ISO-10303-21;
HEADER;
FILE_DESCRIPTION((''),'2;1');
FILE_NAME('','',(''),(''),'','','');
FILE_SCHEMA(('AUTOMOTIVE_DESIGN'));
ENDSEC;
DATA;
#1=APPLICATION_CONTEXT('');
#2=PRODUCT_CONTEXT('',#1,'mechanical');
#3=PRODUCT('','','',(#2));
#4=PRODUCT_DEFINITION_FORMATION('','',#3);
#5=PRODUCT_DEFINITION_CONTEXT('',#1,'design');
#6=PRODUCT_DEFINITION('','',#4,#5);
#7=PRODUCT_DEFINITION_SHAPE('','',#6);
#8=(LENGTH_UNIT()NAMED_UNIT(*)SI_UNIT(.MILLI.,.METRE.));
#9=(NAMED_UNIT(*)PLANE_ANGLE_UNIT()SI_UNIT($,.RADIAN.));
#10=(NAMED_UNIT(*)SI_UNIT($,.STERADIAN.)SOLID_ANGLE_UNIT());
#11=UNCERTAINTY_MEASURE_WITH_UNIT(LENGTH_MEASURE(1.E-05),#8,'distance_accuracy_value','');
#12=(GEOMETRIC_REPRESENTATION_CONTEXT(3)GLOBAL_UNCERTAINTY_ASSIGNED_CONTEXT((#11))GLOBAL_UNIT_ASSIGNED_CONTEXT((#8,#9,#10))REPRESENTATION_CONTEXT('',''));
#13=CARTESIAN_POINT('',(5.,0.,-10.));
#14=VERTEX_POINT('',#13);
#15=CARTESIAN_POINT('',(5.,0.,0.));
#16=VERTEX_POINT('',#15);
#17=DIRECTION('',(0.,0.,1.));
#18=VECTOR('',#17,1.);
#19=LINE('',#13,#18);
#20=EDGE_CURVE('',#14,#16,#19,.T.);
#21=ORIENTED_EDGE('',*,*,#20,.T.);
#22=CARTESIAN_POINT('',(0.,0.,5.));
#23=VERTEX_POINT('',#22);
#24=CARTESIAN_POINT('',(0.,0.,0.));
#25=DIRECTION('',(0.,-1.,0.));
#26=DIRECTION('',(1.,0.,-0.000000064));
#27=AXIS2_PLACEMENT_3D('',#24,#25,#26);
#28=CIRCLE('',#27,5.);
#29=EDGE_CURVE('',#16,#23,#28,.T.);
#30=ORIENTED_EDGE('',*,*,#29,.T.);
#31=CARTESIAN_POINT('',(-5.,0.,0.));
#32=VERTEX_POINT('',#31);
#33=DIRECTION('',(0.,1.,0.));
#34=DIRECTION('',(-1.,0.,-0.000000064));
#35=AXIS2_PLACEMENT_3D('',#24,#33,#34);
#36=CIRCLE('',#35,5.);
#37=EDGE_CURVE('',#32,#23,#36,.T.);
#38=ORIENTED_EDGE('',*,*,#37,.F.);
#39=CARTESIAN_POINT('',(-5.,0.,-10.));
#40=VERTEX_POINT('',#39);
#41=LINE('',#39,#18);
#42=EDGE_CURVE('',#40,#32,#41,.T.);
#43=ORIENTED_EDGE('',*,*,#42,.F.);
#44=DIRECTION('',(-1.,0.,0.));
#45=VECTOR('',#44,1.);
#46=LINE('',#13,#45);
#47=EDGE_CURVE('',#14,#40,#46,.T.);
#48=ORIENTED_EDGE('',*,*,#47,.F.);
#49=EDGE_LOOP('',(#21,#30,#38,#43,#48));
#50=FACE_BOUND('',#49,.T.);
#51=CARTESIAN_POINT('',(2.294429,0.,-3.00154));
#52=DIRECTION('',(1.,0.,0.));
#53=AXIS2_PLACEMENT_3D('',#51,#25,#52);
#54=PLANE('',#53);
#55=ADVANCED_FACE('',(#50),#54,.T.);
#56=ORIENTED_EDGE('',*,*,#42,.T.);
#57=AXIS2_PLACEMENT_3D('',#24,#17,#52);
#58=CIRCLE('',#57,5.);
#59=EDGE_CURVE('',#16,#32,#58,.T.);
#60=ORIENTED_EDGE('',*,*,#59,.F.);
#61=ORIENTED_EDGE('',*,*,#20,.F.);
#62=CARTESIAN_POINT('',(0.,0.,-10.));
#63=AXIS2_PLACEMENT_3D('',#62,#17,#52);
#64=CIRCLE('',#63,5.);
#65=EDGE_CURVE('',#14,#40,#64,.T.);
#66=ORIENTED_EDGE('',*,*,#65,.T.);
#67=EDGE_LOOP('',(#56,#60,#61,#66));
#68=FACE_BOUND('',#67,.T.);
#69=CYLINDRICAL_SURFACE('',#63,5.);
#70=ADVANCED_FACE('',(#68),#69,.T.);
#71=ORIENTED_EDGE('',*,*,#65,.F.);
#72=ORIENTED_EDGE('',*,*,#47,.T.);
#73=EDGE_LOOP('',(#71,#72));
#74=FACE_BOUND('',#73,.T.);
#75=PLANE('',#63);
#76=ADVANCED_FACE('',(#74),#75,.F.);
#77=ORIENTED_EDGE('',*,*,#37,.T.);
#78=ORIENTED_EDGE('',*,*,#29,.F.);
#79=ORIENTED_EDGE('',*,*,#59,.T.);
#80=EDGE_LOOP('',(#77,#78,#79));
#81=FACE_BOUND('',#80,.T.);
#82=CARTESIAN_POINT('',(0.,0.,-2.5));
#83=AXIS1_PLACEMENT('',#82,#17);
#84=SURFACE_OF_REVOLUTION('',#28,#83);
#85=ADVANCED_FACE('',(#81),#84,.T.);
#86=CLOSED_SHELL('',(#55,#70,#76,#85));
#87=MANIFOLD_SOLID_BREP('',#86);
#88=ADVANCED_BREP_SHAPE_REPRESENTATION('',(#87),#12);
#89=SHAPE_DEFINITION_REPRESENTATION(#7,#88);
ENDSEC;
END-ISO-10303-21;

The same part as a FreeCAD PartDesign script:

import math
import FreeCAD as App
import Part
import Sketcher
Q = App.Units.Quantity

doc = App.newDocument("Part")
params = doc.addObject("Spreadsheet::Sheet", "Params")
for row, (alias, value) in enumerate([
    ("sketch1_radius", "5 mm"),
    ("sketch1_height", "10 mm"),
    ("revolution_angle", "180 deg"),
], start=1):
    params.set(f"A{row}", alias)
    params.set(f"B{row}", "=" + value)
    params.setAlias(f"B{row}", alias)

body = doc.addObject("PartDesign::Body", "Body")

sketch1 = doc.addObject("Sketcher::SketchObject", "Sketch")
body.addObject(sketch1)
sketch1.AttachmentSupport = (doc.XZ_Plane, [""])
sketch1.MapMode = "FlatFace"
sketch1.addGeometry([
    Part.LineSegment(App.Vector(5, -10, 0), App.Vector(5, 0, 0)),
    Part.ArcOfCircle(Part.Circle(App.Vector(0, 0, 0), App.Vector(0, 0, 1), 5), math.radians(0), math.radians(90)),
    Part.LineSegment(App.Vector(0, 5, 0), App.Vector(0, -10, 0)),
    Part.LineSegment(App.Vector(0, -10, 0), App.Vector(5, -10, 0)),
], False)
sketch1.addConstraint([
    Sketcher.Constraint("Tangent", 0, 2, 1, 1),
    Sketcher.Constraint("Coincident", 1, 2, 2, 1),
    Sketcher.Constraint("Coincident", 2, 2, 3, 1),
    Sketcher.Constraint("Coincident", 3, 2, 0, 1),
    Sketcher.Constraint("Vertical", 0),
    Sketcher.Constraint("Vertical", 2),
    Sketcher.Constraint("Horizontal", 3),
    Sketcher.Constraint("Coincident", 1, 3, -1, 1),
    Sketcher.Constraint("PointOnObject", 1, 2, -2),
    Sketcher.Constraint("Radius", 1, Q("5 mm")),
    Sketcher.Constraint("DistanceY", 0, 1, 0, 2, Q("10 mm")),
])
sketch1.setExpression("Constraints[9]", "Params.sketch1_radius")
sketch1.setExpression("Constraints[10]", "Params.sketch1_height")
revolution = doc.addObject("PartDesign::Revolution", "Revolution")
body.addObject(revolution)
revolution.Profile = sketch1
revolution.ReferenceAxis = (sketch1, ["V_Axis"])
revolution.setExpression("Angle", "Params.revolution_angle")

doc.recompute()
